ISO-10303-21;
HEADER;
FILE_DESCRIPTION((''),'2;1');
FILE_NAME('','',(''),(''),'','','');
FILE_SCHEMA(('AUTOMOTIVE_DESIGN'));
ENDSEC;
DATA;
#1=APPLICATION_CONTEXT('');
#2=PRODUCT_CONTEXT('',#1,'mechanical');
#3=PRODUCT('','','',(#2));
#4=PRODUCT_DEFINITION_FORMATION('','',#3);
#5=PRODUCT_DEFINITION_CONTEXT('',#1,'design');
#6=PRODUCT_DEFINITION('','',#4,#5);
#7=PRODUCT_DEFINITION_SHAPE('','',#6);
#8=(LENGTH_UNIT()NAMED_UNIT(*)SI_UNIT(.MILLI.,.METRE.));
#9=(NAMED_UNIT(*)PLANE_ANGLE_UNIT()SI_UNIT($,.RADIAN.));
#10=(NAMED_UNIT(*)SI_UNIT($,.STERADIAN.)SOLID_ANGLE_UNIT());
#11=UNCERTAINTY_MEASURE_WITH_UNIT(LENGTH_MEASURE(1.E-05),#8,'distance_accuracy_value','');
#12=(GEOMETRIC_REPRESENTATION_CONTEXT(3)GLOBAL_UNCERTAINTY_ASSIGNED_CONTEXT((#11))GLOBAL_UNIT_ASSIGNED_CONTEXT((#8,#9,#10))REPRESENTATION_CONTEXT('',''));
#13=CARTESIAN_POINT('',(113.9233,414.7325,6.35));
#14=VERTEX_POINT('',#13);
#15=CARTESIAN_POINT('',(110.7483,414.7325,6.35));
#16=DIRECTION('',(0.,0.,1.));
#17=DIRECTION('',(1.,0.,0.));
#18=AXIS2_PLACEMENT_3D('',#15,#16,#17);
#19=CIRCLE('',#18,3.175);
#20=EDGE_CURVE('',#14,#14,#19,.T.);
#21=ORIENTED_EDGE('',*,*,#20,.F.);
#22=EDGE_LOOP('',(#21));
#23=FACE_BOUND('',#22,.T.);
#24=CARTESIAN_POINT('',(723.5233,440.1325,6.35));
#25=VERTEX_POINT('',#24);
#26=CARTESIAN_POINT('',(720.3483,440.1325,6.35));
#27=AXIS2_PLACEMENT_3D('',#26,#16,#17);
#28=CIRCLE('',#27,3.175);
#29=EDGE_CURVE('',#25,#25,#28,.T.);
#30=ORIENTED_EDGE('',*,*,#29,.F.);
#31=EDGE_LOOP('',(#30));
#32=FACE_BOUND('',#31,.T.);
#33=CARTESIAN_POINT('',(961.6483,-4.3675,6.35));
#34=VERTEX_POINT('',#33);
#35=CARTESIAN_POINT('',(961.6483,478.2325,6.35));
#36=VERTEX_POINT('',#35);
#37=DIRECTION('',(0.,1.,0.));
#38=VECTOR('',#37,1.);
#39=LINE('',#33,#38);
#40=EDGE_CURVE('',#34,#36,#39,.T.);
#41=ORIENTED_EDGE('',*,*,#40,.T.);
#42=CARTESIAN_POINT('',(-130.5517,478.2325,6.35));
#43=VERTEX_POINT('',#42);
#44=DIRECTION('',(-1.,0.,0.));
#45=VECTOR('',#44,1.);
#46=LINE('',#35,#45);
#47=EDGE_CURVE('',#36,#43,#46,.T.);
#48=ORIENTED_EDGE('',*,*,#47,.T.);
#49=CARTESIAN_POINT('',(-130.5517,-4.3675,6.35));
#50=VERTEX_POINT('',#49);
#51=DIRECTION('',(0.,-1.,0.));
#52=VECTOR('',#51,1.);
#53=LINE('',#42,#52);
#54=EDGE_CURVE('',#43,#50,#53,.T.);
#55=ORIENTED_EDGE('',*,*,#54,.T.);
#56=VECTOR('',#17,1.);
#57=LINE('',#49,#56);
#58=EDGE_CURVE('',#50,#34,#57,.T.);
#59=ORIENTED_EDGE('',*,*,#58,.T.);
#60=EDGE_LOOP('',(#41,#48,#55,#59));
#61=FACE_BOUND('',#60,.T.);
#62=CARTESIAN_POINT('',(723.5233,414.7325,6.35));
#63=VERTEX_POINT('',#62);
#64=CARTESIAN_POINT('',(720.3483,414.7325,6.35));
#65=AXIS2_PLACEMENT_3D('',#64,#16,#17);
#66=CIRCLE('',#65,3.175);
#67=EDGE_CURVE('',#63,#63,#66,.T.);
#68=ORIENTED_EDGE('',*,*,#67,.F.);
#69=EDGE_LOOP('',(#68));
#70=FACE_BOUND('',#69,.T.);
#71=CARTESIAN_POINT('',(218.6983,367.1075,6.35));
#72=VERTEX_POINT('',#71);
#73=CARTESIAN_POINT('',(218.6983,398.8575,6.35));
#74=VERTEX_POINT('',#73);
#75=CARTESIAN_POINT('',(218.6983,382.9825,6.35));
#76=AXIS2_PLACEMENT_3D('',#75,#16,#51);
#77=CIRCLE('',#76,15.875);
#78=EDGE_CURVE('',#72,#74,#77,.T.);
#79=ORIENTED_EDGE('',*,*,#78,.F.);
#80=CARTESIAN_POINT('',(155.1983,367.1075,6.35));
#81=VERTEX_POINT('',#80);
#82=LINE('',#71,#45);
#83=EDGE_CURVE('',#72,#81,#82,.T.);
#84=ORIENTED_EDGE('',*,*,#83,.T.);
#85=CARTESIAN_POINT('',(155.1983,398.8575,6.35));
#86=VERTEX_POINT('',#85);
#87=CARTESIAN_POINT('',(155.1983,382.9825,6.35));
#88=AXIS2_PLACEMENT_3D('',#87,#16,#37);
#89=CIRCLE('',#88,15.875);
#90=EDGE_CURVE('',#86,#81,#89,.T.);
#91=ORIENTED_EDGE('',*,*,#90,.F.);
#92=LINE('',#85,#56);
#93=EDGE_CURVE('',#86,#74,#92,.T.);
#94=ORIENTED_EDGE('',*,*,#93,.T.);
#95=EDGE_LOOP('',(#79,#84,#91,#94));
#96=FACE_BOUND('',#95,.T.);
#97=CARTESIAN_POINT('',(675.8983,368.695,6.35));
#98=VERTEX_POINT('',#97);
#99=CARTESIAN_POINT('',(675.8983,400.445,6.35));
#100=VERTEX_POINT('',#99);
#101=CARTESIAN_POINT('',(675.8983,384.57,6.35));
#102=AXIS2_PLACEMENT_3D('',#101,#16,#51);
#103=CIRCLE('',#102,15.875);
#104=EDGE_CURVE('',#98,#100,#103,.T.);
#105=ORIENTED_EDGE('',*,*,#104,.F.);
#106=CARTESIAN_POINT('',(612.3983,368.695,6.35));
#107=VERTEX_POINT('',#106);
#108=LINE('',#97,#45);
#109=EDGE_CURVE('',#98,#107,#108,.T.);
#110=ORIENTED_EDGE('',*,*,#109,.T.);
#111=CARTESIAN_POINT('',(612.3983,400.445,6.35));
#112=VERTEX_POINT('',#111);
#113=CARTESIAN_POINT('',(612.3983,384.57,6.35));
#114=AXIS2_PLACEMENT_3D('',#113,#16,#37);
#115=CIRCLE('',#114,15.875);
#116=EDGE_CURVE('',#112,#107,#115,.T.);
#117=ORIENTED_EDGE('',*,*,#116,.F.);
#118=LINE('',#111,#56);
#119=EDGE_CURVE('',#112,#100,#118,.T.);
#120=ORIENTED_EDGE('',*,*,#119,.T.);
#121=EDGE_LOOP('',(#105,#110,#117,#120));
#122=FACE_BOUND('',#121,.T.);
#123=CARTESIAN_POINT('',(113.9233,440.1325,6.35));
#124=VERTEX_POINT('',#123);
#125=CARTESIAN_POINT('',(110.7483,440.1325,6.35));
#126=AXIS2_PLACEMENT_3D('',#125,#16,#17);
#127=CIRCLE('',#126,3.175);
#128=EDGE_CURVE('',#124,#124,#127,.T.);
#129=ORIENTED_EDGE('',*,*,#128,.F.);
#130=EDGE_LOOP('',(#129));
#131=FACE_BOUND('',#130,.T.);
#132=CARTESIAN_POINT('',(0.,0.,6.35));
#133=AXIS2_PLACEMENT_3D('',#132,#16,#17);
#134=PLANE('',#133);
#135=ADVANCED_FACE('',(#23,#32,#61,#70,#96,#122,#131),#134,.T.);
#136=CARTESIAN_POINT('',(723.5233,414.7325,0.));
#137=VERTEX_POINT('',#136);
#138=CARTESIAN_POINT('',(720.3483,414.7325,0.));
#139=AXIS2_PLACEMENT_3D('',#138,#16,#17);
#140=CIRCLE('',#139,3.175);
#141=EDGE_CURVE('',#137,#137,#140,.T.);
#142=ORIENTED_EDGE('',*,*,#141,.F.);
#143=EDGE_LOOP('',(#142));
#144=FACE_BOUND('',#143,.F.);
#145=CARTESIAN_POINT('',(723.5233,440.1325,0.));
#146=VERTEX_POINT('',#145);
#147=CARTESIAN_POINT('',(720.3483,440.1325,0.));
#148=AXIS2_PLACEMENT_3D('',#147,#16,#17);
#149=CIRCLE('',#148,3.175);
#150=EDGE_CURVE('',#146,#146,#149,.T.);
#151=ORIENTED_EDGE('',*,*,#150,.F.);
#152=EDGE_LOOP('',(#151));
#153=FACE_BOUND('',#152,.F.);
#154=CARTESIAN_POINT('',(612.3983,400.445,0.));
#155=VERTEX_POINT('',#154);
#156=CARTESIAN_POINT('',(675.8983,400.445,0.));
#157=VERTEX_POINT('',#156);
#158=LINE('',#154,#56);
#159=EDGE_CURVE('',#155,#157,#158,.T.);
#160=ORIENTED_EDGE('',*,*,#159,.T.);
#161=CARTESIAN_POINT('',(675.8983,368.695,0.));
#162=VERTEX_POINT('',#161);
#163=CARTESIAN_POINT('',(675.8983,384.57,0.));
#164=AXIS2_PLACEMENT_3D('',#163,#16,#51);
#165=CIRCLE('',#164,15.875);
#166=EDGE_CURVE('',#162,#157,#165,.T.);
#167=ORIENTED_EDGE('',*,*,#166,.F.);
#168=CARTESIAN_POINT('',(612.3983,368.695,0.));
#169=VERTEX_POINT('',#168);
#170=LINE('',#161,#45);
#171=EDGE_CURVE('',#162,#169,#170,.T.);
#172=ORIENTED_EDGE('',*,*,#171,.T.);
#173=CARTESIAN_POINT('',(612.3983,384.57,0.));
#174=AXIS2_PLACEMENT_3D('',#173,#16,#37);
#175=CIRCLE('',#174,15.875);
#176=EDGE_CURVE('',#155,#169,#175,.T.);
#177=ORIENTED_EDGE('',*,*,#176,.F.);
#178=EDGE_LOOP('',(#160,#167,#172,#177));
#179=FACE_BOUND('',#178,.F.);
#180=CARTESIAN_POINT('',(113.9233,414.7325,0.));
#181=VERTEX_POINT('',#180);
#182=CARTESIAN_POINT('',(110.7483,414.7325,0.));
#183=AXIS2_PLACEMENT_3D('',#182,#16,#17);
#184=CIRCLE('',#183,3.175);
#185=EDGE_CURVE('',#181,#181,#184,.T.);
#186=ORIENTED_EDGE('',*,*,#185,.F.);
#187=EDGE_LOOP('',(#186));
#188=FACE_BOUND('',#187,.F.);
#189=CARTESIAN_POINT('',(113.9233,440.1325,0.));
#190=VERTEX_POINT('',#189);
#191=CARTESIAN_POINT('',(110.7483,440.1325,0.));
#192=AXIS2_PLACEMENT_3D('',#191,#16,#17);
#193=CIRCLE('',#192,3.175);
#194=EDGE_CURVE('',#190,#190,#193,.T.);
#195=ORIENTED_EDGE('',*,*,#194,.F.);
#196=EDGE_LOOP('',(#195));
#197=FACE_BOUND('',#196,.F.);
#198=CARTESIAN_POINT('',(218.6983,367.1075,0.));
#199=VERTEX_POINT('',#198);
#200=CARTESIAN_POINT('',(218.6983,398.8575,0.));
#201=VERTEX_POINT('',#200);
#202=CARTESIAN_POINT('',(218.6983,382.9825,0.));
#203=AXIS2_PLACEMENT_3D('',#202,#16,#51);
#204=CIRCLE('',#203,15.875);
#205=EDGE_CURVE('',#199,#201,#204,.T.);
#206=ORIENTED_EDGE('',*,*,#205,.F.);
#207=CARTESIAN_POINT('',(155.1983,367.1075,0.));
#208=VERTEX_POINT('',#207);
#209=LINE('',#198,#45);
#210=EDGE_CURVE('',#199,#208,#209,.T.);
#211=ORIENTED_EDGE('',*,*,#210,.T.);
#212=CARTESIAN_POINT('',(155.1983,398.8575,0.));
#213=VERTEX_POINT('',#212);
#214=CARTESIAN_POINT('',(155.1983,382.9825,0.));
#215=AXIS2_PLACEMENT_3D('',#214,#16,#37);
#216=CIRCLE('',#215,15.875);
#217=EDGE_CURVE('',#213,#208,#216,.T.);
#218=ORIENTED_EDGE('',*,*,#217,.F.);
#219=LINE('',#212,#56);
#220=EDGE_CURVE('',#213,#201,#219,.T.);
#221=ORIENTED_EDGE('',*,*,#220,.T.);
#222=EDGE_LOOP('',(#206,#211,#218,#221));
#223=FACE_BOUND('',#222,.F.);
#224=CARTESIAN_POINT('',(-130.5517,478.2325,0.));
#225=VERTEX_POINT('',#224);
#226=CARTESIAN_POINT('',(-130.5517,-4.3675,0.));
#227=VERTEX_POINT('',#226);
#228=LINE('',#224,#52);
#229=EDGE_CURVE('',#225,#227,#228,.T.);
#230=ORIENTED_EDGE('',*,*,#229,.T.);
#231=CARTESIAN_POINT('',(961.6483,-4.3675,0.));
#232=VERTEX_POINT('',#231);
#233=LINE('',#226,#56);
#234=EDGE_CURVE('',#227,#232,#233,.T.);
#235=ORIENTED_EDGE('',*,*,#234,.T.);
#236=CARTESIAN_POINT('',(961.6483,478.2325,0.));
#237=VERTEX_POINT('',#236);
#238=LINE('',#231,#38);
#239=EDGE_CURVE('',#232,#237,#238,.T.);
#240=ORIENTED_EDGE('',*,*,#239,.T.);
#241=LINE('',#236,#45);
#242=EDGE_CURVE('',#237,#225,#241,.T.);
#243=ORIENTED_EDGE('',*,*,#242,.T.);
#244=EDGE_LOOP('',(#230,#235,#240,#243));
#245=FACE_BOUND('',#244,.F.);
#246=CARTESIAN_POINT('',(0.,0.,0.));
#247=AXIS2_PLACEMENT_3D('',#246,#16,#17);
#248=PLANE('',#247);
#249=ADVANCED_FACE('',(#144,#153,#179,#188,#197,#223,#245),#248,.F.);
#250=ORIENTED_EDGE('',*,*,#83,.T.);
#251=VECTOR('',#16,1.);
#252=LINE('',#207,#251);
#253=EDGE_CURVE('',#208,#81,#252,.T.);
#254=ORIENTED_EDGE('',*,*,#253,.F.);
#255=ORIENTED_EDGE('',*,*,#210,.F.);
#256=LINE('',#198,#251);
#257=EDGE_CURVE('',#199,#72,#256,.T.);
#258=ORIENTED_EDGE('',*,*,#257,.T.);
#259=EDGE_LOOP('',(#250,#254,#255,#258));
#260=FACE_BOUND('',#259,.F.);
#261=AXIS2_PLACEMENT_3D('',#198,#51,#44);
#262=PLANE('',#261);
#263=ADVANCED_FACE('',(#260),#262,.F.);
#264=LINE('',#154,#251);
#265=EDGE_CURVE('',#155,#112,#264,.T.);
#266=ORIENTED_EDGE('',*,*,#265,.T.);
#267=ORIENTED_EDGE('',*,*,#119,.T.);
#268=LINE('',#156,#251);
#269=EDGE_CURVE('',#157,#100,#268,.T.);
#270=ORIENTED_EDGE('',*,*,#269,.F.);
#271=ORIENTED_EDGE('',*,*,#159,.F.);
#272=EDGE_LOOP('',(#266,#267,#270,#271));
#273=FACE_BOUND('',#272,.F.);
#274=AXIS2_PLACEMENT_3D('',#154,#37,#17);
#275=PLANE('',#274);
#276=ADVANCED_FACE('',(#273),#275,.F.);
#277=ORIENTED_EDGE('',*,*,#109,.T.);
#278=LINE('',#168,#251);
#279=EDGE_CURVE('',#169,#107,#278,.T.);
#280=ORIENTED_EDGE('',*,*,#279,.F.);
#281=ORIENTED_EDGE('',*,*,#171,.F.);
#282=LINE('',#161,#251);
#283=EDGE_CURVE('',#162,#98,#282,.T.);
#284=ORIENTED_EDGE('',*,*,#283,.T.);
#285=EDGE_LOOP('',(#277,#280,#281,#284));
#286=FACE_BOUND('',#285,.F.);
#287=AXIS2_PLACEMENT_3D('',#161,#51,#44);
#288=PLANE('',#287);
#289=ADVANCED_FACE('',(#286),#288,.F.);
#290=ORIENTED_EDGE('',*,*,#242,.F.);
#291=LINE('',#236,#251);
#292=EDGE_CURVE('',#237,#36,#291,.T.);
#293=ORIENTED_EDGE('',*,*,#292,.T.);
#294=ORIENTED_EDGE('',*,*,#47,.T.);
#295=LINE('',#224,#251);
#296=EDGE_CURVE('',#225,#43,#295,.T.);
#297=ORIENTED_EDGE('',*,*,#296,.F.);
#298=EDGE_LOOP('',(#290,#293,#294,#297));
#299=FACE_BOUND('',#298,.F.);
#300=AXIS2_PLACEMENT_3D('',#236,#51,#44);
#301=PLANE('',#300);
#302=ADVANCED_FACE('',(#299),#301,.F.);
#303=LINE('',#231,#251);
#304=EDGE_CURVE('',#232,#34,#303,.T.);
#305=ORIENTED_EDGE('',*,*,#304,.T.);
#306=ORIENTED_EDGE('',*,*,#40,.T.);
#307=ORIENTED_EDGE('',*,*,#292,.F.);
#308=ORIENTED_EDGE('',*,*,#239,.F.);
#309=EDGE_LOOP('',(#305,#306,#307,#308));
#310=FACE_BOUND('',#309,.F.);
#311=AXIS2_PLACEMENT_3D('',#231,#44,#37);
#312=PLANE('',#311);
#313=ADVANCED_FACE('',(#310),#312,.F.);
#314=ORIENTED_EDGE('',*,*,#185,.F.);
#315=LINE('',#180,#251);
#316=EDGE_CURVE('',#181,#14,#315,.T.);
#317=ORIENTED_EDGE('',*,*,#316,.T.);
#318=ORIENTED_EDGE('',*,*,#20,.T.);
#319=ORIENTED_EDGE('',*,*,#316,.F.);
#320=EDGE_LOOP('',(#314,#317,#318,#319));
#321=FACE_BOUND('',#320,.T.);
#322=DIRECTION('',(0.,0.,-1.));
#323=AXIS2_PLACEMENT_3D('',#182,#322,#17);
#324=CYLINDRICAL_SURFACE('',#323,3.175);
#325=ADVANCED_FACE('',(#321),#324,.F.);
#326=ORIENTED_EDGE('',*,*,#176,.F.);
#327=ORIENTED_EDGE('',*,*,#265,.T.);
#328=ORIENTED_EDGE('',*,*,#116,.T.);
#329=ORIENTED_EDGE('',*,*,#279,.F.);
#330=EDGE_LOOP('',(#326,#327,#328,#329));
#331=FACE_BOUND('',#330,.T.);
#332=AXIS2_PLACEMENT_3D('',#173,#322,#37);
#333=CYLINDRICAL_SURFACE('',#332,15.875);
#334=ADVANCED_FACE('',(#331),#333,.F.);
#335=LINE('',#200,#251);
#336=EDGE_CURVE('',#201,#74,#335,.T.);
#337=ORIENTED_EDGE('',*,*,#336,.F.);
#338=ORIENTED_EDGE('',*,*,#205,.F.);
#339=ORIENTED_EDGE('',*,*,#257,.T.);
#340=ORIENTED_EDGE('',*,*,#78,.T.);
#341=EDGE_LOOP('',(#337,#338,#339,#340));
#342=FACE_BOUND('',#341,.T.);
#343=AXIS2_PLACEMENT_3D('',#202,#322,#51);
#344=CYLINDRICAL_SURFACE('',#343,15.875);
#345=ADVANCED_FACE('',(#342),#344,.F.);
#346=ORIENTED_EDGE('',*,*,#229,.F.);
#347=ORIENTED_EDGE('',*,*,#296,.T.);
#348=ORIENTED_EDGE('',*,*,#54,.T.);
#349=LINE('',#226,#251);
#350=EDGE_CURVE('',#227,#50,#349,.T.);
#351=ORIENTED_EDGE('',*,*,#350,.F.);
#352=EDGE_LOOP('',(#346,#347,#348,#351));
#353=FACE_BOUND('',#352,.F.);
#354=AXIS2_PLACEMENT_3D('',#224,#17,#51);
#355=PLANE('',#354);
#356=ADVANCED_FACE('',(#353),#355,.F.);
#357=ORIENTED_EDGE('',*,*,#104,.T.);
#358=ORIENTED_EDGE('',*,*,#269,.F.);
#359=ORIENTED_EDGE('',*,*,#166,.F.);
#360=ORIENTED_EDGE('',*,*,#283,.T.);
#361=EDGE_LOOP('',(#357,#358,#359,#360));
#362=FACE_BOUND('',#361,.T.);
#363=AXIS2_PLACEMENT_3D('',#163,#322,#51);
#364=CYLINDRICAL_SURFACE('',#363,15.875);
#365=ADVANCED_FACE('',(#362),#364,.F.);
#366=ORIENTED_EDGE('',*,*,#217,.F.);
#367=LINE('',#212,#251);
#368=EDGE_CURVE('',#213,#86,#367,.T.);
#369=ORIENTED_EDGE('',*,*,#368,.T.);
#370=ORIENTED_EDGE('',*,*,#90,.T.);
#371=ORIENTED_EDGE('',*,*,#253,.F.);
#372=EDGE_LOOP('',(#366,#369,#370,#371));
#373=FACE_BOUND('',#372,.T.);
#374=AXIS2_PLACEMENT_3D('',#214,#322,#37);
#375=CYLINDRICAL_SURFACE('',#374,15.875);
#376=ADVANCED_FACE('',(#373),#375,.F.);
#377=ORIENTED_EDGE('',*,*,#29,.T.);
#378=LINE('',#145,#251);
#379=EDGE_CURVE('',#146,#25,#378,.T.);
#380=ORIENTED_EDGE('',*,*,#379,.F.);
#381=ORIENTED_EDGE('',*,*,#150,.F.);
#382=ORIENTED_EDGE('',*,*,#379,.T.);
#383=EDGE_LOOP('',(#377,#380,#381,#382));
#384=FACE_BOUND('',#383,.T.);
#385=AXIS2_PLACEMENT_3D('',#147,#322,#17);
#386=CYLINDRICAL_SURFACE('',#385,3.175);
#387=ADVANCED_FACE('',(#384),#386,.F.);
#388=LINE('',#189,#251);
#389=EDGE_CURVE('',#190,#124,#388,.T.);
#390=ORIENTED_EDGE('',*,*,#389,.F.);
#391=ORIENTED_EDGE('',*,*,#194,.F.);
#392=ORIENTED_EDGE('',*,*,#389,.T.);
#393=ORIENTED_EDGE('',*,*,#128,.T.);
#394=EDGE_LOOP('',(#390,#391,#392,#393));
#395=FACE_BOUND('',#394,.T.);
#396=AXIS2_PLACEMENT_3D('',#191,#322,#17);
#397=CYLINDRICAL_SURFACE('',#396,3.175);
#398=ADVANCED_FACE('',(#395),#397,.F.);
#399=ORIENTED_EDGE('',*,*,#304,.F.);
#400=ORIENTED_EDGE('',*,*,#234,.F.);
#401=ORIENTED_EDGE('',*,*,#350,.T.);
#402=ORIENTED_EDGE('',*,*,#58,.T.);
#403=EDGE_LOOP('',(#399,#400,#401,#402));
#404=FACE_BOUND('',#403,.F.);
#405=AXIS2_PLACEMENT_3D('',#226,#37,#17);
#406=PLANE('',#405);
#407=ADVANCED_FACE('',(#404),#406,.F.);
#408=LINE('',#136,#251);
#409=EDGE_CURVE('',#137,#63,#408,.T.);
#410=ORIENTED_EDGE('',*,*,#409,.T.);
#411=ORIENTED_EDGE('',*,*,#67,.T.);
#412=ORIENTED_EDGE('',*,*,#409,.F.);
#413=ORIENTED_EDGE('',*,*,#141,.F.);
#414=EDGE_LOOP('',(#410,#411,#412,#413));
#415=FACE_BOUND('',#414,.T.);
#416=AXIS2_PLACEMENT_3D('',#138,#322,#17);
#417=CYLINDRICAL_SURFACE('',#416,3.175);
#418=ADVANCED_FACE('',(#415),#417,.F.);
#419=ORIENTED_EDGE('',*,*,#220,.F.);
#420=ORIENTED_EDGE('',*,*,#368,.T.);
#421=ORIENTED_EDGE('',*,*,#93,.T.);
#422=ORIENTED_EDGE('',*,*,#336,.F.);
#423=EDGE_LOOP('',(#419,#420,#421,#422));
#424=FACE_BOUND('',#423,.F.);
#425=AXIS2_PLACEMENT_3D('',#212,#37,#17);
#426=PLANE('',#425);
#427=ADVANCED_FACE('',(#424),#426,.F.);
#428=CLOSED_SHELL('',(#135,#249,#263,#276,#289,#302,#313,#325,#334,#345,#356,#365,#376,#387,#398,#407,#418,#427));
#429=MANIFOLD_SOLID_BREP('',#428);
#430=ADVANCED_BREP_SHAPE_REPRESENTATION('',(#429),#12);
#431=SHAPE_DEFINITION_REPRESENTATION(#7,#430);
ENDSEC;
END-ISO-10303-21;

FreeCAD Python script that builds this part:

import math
import FreeCAD as App
import Part
import Sketcher
from FreeCAD import Vector
Q = App.Units.Quantity


def add_polygon(sketch, points):
    """Adds a closed chain of lines whose ends are joined by coincident constraints."""
    first, n = sketch.GeometryCount, len(points)
    for a, b in zip(points, points[1:] + points[:1]):
        sketch.addGeometry(Part.LineSegment(App.Vector(*a, 0), App.Vector(*b, 0)), False)
    for i in range(n):
        sketch.addConstraint(Sketcher.Constraint("Coincident", first + i, 2, first + (i + 1) % n, 1))

doc = App.newDocument("Part")
body = doc.addObject("PartDesign::Body", "Body")

# Sketch on XY plane
sketch1 = body.newObject("Sketcher::SketchObject", "Sketch")
sketch1.AttachmentSupport = (doc.getObject("XY_Plane"), [""])
sketch1.MapMode = "FlatFace"
add_polygon(sketch1, [(-130.5517, 478.2325), (-130.5517, -4.3675), (961.6483, -4.3675), (961.6483, 478.2325)])  # lines 0-3
sketch1.addGeometry(Part.Circle(Vector(110.7483, 414.7325, 0), Vector(0, 0, 1), 3.175), False)  # 4
sketch1.addGeometry(Part.Circle(Vector(110.7483, 440.1325, 0), Vector(0, 0, 1), 3.175), False)  # 5
sketch1.addGeometry(Part.ArcOfCircle(Part.Circle(Vector(155.1983, 382.9825, 0), Vector(0, 0, 1), 15.875), math.radians(90), math.radians(270)), False)  # 6
sketch1.addGeometry(Part.LineSegment(Vector(155.1983, 398.8575, 0), Vector(218.6983, 398.8575, 0)), False)  # 7
sketch1.addGeometry(Part.ArcOfCircle(Part.Circle(Vector(218.6983, 382.9825, 0), Vector(0, 0, 1), 15.875), math.radians(-90), math.radians(90)), False)  # 8
sketch1.addGeometry(Part.LineSegment(Vector(218.6983, 367.1075, 0), Vector(155.1983, 367.1075, 0)), False)  # 9
sketch1.addGeometry(Part.ArcOfCircle(Part.Circle(Vector(612.3983, 384.57, 0), Vector(0, 0, 1), 15.875), math.radians(90), math.radians(270)), False)  # 10
sketch1.addGeometry(Part.LineSegment(Vector(612.3983, 400.445, 0), Vector(675.8983, 400.445, 0)), False)  # 11
sketch1.addGeometry(Part.ArcOfCircle(Part.Circle(Vector(675.8983, 384.57, 0), Vector(0, 0, 1), 15.875), math.radians(-90), math.radians(90)), False)  # 12
sketch1.addGeometry(Part.LineSegment(Vector(675.8983, 368.695, 0), Vector(612.3983, 368.695, 0)), False)  # 13
sketch1.addGeometry(Part.Circle(Vector(720.3483, 414.7325, 0), Vector(0, 0, 1), 3.175), False)  # 14
sketch1.addGeometry(Part.Circle(Vector(720.3483, 440.1325, 0), Vector(0, 0, 1), 3.175), False)  # 15
sketch1.addConstraint(Sketcher.Constraint("Tangent", 6, 1, 7, 1))
sketch1.addConstraint(Sketcher.Constraint("Tangent", 7, 2, 8, 2))
sketch1.addConstraint(Sketcher.Constraint("Tangent", 8, 1, 9, 1))
sketch1.addConstraint(Sketcher.Constraint("Tangent", 9, 2, 6, 2))
sketch1.addConstraint(Sketcher.Constraint("Tangent", 10, 1, 11, 1))
sketch1.addConstraint(Sketcher.Constraint("Tangent", 11, 2, 12, 2))
sketch1.addConstraint(Sketcher.Constraint("Tangent", 12, 1, 13, 1))
sketch1.addConstraint(Sketcher.Constraint("Tangent", 13, 2, 10, 2))
sketch1.addConstraint(Sketcher.Constraint("Vertical", 0))
sketch1.addConstraint(Sketcher.Constraint("Horizontal", 1))
sketch1.addConstraint(Sketcher.Constraint("Vertical", 2))
sketch1.addConstraint(Sketcher.Constraint("Horizontal", 3))
sketch1.addConstraint(Sketcher.Constraint("Horizontal", 7))
sketch1.addConstraint(Sketcher.Constraint("Horizontal", 9))
sketch1.addConstraint(Sketcher.Constraint("Horizontal", 11))
sketch1.addConstraint(Sketcher.Constraint("Horizontal", 13))
sketch1.addConstraint(Sketcher.Constraint("Equal", 4, 5))
sketch1.addConstraint(Sketcher.Constraint("Equal", 8, 10))
sketch1.addConstraint(Sketcher.Constraint("Equal", 5, 14))
sketch1.addConstraint(Sketcher.Constraint("Equal", 14, 15))
sketch1.addConstraint(Sketcher.Constraint("Horizontal", 4, 3, 14, 3))
sketch1.addConstraint(Sketcher.Constraint("Horizontal", 5, 3, 15, 3))
sketch1.addConstraint(Sketcher.Constraint("Vertical", 4, 3, 5, 3))
sketch1.addConstraint(Sketcher.Constraint("Vertical", 14, 3, 15, 3))
sketch1.addConstraint(Sketcher.Constraint("Equal", 9, 11))
sketch1.addConstraint(Sketcher.Constraint("DistanceX", 1, 1, 1, 2, Q("43 in")))
sketch1.addConstraint(Sketcher.Constraint("DistanceY", 0, 2, 0, 1, Q("19 in")))
sketch1.addConstraint(Sketcher.Constraint("DistanceX", 7, 1, 7, 2, Q("2.5 in")))
sketch1.addConstraint(Sketcher.Constraint("Radius", 6, Q("0.625 in")))
sketch1.addConstraint(Sketcher.Constraint("DistanceX", 0, 2, 4, 3, Q("9.5 in")))
sketch1.addConstraint(Sketcher.Constraint("DistanceX", 14, 3, 1, 2, Q("9.5 in")))
sketch1.addConstraint(Sketcher.Constraint("DistanceY", 15, 3, 2, 2, Q("1.5 in")))
sketch1.addConstraint(Sketcher.Constraint("DistanceY", 14, 3, 2, 2, Q("2.5 in")))
sketch1.addConstraint(Sketcher.Constraint("Diameter", 4, Q("0.25 in")))
sketch1.addConstraint(Sketcher.Constraint("DistanceX", 0, 2, 6, 3, Q("11.25 in")))
sketch1.addConstraint(Sketcher.Constraint("DistanceX", 12, 3, 1, 2, Q("11.25 in")))
sketch1.addConstraint(Sketcher.Constraint("DistanceY", 6, 3, 3, 2, Q("3.75 in")))
sketch1.addConstraint(Sketcher.Constraint("DistanceY", 8, 3, 10, 3, Q("0.0625 in")))
sketch1.addConstraint(Sketcher.Constraint("DistanceX", -1, 1, 4, 3, 110.7483))
sketch1.addConstraint(Sketcher.Constraint("DistanceY", -1, 1, 4, 3, 414.7325))
pad1 = body.newObject("PartDesign::Pad", "Pad")
pad1.Profile = sketch1
pad1.Length = Q("0.25 in")

doc.recompute()
